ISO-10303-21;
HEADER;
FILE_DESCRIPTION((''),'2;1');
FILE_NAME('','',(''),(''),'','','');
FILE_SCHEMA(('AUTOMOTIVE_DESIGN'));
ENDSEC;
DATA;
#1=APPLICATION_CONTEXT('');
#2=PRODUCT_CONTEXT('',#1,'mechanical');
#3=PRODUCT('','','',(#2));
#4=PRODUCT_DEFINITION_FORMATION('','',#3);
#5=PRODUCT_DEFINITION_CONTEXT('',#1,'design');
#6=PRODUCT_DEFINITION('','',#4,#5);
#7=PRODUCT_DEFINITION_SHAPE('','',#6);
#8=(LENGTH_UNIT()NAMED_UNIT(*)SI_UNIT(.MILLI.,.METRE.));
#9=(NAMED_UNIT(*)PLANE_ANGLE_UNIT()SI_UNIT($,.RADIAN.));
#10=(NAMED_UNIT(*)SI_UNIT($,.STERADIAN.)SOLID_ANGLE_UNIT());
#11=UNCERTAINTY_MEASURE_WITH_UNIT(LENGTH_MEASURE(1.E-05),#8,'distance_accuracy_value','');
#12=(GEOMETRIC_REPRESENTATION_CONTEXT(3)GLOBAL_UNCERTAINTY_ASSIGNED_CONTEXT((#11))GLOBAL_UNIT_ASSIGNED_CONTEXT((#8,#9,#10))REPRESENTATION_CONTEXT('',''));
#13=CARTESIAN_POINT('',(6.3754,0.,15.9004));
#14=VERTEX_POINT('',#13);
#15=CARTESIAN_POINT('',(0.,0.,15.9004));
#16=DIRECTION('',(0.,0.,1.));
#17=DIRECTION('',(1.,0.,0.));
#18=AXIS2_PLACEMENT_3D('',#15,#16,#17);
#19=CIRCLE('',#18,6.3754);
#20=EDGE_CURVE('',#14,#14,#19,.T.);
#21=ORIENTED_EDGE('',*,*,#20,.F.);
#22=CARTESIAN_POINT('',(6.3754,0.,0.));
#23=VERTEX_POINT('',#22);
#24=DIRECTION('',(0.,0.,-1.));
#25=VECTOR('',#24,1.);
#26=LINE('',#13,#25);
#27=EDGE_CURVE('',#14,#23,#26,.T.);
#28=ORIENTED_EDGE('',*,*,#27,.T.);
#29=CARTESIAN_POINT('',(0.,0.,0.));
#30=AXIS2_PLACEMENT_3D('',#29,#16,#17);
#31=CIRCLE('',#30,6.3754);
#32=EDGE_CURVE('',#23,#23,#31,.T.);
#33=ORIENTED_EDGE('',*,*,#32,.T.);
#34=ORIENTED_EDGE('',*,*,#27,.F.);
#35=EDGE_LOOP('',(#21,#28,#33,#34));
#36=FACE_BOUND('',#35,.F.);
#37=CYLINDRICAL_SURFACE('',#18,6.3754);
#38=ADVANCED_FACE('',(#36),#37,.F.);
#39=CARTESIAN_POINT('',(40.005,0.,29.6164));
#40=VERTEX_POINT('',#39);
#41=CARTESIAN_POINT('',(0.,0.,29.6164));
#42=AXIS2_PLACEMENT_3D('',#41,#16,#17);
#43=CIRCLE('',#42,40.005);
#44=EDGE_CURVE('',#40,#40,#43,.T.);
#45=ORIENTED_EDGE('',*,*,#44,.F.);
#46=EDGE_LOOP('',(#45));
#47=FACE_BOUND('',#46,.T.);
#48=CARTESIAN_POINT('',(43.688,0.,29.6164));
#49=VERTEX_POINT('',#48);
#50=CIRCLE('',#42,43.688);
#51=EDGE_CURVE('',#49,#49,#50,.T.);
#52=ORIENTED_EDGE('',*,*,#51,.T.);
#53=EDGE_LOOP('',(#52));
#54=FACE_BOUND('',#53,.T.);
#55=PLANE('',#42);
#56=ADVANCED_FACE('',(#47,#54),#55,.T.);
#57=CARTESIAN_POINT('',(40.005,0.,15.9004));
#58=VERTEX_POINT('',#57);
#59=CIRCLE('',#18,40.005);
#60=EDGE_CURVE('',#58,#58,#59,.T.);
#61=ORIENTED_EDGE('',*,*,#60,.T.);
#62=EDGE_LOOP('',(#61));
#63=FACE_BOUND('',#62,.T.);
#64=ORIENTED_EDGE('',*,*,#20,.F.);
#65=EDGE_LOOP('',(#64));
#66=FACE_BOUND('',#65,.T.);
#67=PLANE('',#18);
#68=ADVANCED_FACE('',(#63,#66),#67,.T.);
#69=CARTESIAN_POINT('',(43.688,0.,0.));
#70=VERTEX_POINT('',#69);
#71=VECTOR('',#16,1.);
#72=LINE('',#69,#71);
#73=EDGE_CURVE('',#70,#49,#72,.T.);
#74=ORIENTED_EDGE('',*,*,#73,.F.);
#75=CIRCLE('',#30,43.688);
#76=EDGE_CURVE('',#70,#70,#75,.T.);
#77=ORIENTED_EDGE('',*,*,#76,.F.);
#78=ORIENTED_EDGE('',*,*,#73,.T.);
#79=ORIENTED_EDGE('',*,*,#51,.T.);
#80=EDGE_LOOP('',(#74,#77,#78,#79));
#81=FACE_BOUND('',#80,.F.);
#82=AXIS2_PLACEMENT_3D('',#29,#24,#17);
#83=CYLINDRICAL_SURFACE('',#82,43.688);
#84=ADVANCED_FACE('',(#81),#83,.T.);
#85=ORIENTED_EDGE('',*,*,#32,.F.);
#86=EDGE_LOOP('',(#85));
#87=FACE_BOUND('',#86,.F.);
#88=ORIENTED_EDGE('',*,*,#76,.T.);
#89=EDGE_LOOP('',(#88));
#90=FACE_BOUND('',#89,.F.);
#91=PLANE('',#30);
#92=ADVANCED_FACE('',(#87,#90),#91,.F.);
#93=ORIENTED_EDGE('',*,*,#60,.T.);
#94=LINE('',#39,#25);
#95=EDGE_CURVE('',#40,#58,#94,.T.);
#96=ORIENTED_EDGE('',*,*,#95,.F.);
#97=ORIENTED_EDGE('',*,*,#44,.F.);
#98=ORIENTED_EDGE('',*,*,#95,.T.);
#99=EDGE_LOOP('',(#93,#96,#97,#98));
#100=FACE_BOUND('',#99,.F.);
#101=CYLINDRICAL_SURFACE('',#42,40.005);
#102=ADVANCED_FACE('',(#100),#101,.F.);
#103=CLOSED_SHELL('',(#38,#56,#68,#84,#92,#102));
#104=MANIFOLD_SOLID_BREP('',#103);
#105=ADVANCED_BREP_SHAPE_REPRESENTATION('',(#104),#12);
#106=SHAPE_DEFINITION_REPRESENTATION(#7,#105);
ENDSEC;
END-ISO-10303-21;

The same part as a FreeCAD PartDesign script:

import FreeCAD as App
import Part
import Sketcher

V = App.Vector
Q = App.Units.Quantity

doc = App.newDocument("Part")
body = doc.addObject("PartDesign::Body", "Body")

# Sketch on XY plane
sketch1 = doc.addObject("Sketcher::SketchObject", "Sketch")
body.addObject(sketch1)
sketch1.AttachmentSupport = (doc.XY_Plane, [""])
sketch1.MapMode = "FlatFace"
sketch1.addGeometry(Part.Circle(V(0, 0, 0), V(0, 0, 1), 44), False)
sketch1.addConstraint(Sketcher.Constraint("Coincident", 0, 3, -1, 1))
sketch1.addConstraint(Sketcher.Constraint("Diameter", 0, Q("3.44 in")))
pad1 = doc.addObject("PartDesign::Pad", "Pad")
body.addObject(pad1)
pad1.Profile = sketch1
pad1.Length = Q("1.166 in")

# Sketch on XY plane
sketch2 = doc.addObject("Sketcher::SketchObject", "Sketch001")
body.addObject(sketch2)
sketch2.AttachmentSupport = (doc.XY_Plane, [""])
sketch2.MapMode = "FlatFace"
sketch2.AttachmentOffset = App.Placement(V(0, 0, 1.166 * 25.4), App.Rotation())
sketch2.addGeometry(Part.Circle(V(0, 0, 0), V(0, 0, 1), 40), False)
sketch2.addConstraint(Sketcher.Constraint("Coincident", 0, 3, -1, 1))
sketch2.addConstraint(Sketcher.Constraint("Diameter", 0, Q("3.15 in")))
pocket1 = doc.addObject("PartDesign::Pocket", "Pocket")
body.addObject(pocket1)
pocket1.Profile = sketch2
pocket1.Length = Q("0.54 in")

# Sketch on XY plane
sketch3 = doc.addObject("Sketcher::SketchObject", "Sketch002")
body.addObject(sketch3)
sketch3.AttachmentSupport = (doc.XY_Plane, [""])
sketch3.MapMode = "FlatFace"
sketch3.AttachmentOffset = App.Placement(V(0, 0, 0.626 * 25.4), App.Rotation())
sketch3.addGeometry(Part.Circle(V(0, 0, 0), V(0, 0, 1), 6), False)
sketch3.addConstraint(Sketcher.Constraint("Coincident", 0, 3, -1, 1))
sketch3.addConstraint(Sketcher.Constraint("Diameter", 0, Q("0.502 in")))
pocket2 = doc.addObject("PartDesign::Pocket", "Pocket001")
body.addObject(pocket2)
pocket2.Profile = sketch3
pocket2.Type = "ThroughAll"

doc.recompute()
